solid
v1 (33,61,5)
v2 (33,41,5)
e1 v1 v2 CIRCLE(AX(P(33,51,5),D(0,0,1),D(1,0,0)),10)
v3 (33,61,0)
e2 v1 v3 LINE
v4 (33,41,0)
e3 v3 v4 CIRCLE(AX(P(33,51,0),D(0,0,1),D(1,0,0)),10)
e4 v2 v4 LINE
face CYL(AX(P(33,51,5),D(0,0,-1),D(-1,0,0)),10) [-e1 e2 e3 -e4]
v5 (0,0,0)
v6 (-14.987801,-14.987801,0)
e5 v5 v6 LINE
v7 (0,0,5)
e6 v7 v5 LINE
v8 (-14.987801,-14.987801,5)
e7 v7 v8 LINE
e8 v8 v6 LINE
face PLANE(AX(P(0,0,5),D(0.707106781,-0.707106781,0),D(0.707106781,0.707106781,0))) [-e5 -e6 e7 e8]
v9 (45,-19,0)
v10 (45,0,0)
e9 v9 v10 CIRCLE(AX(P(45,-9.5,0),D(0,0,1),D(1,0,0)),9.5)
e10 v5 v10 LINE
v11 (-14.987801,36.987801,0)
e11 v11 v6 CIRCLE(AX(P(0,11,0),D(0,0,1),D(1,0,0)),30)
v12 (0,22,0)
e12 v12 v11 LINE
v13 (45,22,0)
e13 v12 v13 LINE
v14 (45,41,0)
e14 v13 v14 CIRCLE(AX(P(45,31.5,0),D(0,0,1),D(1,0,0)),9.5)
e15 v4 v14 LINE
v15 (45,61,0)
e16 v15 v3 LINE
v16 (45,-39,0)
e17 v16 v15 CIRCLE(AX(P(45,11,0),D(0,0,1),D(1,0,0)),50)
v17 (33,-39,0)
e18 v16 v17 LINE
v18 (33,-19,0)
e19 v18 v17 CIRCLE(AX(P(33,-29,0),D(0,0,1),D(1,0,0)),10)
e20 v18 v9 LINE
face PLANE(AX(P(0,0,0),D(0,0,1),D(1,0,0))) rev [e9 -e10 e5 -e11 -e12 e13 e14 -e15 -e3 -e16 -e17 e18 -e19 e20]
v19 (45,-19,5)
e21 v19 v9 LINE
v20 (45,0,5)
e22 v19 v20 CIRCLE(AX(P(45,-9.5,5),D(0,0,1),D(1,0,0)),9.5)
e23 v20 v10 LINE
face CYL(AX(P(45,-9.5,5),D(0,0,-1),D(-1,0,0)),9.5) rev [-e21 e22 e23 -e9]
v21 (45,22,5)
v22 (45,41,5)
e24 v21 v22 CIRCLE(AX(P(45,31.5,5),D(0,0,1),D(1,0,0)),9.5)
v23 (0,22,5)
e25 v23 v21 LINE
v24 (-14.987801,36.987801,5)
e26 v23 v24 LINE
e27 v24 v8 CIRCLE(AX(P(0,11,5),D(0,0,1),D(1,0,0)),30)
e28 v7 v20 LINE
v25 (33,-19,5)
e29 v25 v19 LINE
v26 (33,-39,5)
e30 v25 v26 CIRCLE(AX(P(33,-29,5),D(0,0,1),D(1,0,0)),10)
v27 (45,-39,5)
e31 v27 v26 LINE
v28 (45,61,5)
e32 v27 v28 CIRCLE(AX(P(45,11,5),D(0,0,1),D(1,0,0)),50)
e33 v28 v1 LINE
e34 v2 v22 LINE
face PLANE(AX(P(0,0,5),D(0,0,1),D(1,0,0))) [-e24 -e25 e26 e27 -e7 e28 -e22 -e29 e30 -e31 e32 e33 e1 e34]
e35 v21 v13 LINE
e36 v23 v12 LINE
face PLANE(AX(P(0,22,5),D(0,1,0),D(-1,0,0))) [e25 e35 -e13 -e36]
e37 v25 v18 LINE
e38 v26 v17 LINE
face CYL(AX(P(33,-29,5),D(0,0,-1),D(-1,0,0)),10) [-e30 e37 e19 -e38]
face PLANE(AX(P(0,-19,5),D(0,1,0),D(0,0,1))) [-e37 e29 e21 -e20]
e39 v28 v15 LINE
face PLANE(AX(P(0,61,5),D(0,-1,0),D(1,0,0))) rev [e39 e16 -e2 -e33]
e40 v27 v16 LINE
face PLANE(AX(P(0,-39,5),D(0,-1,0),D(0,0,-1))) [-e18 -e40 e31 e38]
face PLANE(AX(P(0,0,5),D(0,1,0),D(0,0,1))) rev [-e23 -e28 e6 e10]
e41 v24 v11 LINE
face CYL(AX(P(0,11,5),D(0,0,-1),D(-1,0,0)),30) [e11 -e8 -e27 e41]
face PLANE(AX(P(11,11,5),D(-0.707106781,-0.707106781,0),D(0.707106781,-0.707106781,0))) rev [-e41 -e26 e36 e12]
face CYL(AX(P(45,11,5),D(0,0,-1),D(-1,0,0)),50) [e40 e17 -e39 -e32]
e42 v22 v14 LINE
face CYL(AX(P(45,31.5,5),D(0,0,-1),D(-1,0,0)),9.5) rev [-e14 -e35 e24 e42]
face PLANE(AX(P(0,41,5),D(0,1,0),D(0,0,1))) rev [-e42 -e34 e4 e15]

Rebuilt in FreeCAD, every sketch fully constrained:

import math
import FreeCAD as App
import Part
import Sketcher
Q = App.Units.Quantity

doc = App.newDocument("Part")
body = doc.addObject("PartDesign::Body", "Body")

# Sketch on XY plane
sketch1 = body.newObject("Sketcher::SketchObject", "Sketch")
sketch1.AttachmentSupport = (doc.getObject("XY_Plane"), [""])
sketch1.MapMode = "FlatFace"
sketch1.addGeometry(Part.LineSegment(App.Vector(0, 22, 0), App.Vector(-15, 37, 0)), False)
sketch1.addGeometry(Part.ArcOfCircle(Part.Circle(App.Vector(0, 11, 0), App.Vector(0, 0, 1), 30), math.radians(120), math.radians(240)), False)
sketch1.addGeometry(Part.LineSegment(App.Vector(-15, -15, 0), App.Vector(0, 0, 0)), False)
sketch1.addGeometry(Part.LineSegment(App.Vector(0, 0, 0), App.Vector(45, 0, 0)), False)
sketch1.addGeometry(Part.ArcOfCircle(Part.Circle(App.Vector(45, -10, 0), App.Vector(0, 0, 1), 10), math.radians(-90), math.radians(90)), False)
sketch1.addGeometry(Part.LineSegment(App.Vector(45, -19, 0), App.Vector(33, -19, 0)), False)
sketch1.addGeometry(Part.ArcOfCircle(Part.Circle(App.Vector(33, -29, 0), App.Vector(0, 0, 1), 10), math.radians(90), math.radians(270)), False)
sketch1.addGeometry(Part.LineSegment(App.Vector(33, -39, 0), App.Vector(45, -39, 0)), False)
sketch1.addGeometry(Part.ArcOfCircle(Part.Circle(App.Vector(45, 11, 0), App.Vector(0, 0, 1), 50), math.radians(-90), math.radians(90)), False)
sketch1.addGeometry(Part.LineSegment(App.Vector(45, 61, 0), App.Vector(33, 61, 0)), False)
sketch1.addGeometry(Part.ArcOfCircle(Part.Circle(App.Vector(33, 51, 0), App.Vector(0, 0, 1), 10), math.radians(90), math.radians(270)), False)
sketch1.addGeometry(Part.LineSegment(App.Vector(33, 41, 0), App.Vector(45, 41, 0)), False)
sketch1.addGeometry(Part.ArcOfCircle(Part.Circle(App.Vector(45, 32, 0), App.Vector(0, 0, 1), 10), math.radians(-90), math.radians(90)), False)
sketch1.addGeometry(Part.LineSegment(App.Vector(45, 22, 0), App.Vector(0, 22, 0)), False)
sketch1.addConstraint(Sketcher.Constraint("Coincident", 0, 2, 1, 1))
sketch1.addConstraint(Sketcher.Constraint("Coincident", 1, 2, 2, 1))
sketch1.addConstraint(Sketcher.Constraint("Coincident", 2, 2, 3, 1))
sketch1.addConstraint(Sketcher.Constraint("Tangent", 3, 2, 4, 2))
sketch1.addConstraint(Sketcher.Constraint("Tangent", 4, 1, 5, 1))
sketch1.addConstraint(Sketcher.Constraint("Tangent", 5, 2, 6, 1))
sketch1.addConstraint(Sketcher.Constraint("Tangent", 6, 2, 7, 1))
sketch1.addConstraint(Sketcher.Constraint("Tangent", 7, 2, 8, 1))
sketch1.addConstraint(Sketcher.Constraint("Tangent", 8, 2, 9, 1))
sketch1.addConstraint(Sketcher.Constraint("Tangent", 9, 2, 10, 1))
sketch1.addConstraint(Sketcher.Constraint("Tangent", 10, 2, 11, 1))
sketch1.addConstraint(Sketcher.Constraint("Tangent", 11, 2, 12, 2))
sketch1.addConstraint(Sketcher.Constraint("Tangent", 12, 1, 13, 1))
sketch1.addConstraint(Sketcher.Constraint("Coincident", 13, 2, 0, 1))
sketch1.addConstraint(Sketcher.Constraint("Horizontal", 3))
sketch1.addConstraint(Sketcher.Constraint("Horizontal", 5))
sketch1.addConstraint(Sketcher.Constraint("Horizontal", 7))
sketch1.addConstraint(Sketcher.Constraint("Horizontal", 9))
sketch1.addConstraint(Sketcher.Constraint("Horizontal", 11))
sketch1.addConstraint(Sketcher.Constraint("Horizontal", 13))
sketch1.addConstraint(Sketcher.Constraint("Coincident", 2, 2, -1, 1))
sketch1.addConstraint(Sketcher.Constraint("Equal", 6, 10))
sketch1.addConstraint(Sketcher.Constraint("Equal", 4, 12))
sketch1.addConstraint(Sketcher.Constraint("PointOnObject", 1, 3, -2))
sketch1.addConstraint(Sketcher.Constraint("PointOnObject", 13, 2, -2))
sketch1.addConstraint(Sketcher.Constraint("Perpendicular", 0, 2))
sketch1.addConstraint(Sketcher.Constraint("Horizontal", 1, 3, 8, 3))
sketch1.addConstraint(Sketcher.Constraint("Vertical", 4, 3, 8, 3))
sketch1.addConstraint(Sketcher.Constraint("Vertical", 6, 3, 10, 3))
sketch1.addConstraint(Sketcher.Constraint("Vertical", 8, 3, 12, 3))
sketch1.addConstraint(Sketcher.Constraint("Vertical", 0, 2, 1, 2))
sketch1.addConstraint(Sketcher.Constraint("Radius", 1, Q("30 mm")))
sketch1.addConstraint(Sketcher.Constraint("Radius", 6, Q("10 mm")))
sketch1.addConstraint(Sketcher.Constraint("Radius", 8, Q("50 mm")))
sketch1.addConstraint(Sketcher.Constraint("Radius", 4, Q("9.5 mm")))
sketch1.addConstraint(Sketcher.Constraint("DistanceX", 3, 1, 3, 2, Q("45 mm")))
sketch1.addConstraint(Sketcher.Constraint("DistanceX", 5, 2, 5, 1, Q("12 mm")))
pad1 = body.newObject("PartDesign::Pad", "Pad")
pad1.Profile = sketch1
pad1.Length = 5

doc.recompute()
